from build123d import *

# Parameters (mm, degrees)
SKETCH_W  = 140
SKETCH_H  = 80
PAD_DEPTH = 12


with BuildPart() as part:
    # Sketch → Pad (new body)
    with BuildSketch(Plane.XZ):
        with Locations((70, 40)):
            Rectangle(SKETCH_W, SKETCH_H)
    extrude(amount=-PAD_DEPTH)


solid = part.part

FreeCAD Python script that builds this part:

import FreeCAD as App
import Part
import Sketcher

V = App.Vector


def add_polygon(sketch, points):
    """Adds a closed chain of lines whose ends are joined by coincident constraints."""
    first, n = sketch.GeometryCount, len(points)
    for a, b in zip(points, points[1:] + points[:1]):
        sketch.addGeometry(Part.LineSegment(App.Vector(*a, 0), App.Vector(*b, 0)), False)
    for i in range(n):
        sketch.addConstraint(Sketcher.Constraint("Coincident", first + i, 2, first + (i + 1) % n, 1))

doc = App.newDocument("Part")
body = doc.addObject("PartDesign::Body", "Body")

# Sketch on XZ plane
sketch1 = body.newObject("Sketcher::SketchObject", "Sketch")
sketch1.AttachmentSupport = (doc.getObject("XZ_Plane"), [""])
sketch1.MapMode = "FlatFace"
add_polygon(sketch1, [(0, 80), (0, 0), (140, 0), (140, 80)])  # lines 0-3
sketch1.addConstraint([
    Sketcher.Constraint("Vertical", 0),
    Sketcher.Constraint("Horizontal", 1),
    Sketcher.Constraint("Vertical", 2),
    Sketcher.Constraint("Horizontal", 3),
    Sketcher.Constraint("Coincident", 0, 2, -1, 1),
    Sketcher.Constraint("DistanceX", 1, 1, 1, 2, 140.0),
    Sketcher.Constraint("DistanceY", 0, 2, 0, 1, 80.0),
])
pad1 = body.newObject("PartDesign::Pad", "Pad")
pad1.Profile = sketch1
pad1.Length = 12
pad1.Reversed = True

doc.recompute()
